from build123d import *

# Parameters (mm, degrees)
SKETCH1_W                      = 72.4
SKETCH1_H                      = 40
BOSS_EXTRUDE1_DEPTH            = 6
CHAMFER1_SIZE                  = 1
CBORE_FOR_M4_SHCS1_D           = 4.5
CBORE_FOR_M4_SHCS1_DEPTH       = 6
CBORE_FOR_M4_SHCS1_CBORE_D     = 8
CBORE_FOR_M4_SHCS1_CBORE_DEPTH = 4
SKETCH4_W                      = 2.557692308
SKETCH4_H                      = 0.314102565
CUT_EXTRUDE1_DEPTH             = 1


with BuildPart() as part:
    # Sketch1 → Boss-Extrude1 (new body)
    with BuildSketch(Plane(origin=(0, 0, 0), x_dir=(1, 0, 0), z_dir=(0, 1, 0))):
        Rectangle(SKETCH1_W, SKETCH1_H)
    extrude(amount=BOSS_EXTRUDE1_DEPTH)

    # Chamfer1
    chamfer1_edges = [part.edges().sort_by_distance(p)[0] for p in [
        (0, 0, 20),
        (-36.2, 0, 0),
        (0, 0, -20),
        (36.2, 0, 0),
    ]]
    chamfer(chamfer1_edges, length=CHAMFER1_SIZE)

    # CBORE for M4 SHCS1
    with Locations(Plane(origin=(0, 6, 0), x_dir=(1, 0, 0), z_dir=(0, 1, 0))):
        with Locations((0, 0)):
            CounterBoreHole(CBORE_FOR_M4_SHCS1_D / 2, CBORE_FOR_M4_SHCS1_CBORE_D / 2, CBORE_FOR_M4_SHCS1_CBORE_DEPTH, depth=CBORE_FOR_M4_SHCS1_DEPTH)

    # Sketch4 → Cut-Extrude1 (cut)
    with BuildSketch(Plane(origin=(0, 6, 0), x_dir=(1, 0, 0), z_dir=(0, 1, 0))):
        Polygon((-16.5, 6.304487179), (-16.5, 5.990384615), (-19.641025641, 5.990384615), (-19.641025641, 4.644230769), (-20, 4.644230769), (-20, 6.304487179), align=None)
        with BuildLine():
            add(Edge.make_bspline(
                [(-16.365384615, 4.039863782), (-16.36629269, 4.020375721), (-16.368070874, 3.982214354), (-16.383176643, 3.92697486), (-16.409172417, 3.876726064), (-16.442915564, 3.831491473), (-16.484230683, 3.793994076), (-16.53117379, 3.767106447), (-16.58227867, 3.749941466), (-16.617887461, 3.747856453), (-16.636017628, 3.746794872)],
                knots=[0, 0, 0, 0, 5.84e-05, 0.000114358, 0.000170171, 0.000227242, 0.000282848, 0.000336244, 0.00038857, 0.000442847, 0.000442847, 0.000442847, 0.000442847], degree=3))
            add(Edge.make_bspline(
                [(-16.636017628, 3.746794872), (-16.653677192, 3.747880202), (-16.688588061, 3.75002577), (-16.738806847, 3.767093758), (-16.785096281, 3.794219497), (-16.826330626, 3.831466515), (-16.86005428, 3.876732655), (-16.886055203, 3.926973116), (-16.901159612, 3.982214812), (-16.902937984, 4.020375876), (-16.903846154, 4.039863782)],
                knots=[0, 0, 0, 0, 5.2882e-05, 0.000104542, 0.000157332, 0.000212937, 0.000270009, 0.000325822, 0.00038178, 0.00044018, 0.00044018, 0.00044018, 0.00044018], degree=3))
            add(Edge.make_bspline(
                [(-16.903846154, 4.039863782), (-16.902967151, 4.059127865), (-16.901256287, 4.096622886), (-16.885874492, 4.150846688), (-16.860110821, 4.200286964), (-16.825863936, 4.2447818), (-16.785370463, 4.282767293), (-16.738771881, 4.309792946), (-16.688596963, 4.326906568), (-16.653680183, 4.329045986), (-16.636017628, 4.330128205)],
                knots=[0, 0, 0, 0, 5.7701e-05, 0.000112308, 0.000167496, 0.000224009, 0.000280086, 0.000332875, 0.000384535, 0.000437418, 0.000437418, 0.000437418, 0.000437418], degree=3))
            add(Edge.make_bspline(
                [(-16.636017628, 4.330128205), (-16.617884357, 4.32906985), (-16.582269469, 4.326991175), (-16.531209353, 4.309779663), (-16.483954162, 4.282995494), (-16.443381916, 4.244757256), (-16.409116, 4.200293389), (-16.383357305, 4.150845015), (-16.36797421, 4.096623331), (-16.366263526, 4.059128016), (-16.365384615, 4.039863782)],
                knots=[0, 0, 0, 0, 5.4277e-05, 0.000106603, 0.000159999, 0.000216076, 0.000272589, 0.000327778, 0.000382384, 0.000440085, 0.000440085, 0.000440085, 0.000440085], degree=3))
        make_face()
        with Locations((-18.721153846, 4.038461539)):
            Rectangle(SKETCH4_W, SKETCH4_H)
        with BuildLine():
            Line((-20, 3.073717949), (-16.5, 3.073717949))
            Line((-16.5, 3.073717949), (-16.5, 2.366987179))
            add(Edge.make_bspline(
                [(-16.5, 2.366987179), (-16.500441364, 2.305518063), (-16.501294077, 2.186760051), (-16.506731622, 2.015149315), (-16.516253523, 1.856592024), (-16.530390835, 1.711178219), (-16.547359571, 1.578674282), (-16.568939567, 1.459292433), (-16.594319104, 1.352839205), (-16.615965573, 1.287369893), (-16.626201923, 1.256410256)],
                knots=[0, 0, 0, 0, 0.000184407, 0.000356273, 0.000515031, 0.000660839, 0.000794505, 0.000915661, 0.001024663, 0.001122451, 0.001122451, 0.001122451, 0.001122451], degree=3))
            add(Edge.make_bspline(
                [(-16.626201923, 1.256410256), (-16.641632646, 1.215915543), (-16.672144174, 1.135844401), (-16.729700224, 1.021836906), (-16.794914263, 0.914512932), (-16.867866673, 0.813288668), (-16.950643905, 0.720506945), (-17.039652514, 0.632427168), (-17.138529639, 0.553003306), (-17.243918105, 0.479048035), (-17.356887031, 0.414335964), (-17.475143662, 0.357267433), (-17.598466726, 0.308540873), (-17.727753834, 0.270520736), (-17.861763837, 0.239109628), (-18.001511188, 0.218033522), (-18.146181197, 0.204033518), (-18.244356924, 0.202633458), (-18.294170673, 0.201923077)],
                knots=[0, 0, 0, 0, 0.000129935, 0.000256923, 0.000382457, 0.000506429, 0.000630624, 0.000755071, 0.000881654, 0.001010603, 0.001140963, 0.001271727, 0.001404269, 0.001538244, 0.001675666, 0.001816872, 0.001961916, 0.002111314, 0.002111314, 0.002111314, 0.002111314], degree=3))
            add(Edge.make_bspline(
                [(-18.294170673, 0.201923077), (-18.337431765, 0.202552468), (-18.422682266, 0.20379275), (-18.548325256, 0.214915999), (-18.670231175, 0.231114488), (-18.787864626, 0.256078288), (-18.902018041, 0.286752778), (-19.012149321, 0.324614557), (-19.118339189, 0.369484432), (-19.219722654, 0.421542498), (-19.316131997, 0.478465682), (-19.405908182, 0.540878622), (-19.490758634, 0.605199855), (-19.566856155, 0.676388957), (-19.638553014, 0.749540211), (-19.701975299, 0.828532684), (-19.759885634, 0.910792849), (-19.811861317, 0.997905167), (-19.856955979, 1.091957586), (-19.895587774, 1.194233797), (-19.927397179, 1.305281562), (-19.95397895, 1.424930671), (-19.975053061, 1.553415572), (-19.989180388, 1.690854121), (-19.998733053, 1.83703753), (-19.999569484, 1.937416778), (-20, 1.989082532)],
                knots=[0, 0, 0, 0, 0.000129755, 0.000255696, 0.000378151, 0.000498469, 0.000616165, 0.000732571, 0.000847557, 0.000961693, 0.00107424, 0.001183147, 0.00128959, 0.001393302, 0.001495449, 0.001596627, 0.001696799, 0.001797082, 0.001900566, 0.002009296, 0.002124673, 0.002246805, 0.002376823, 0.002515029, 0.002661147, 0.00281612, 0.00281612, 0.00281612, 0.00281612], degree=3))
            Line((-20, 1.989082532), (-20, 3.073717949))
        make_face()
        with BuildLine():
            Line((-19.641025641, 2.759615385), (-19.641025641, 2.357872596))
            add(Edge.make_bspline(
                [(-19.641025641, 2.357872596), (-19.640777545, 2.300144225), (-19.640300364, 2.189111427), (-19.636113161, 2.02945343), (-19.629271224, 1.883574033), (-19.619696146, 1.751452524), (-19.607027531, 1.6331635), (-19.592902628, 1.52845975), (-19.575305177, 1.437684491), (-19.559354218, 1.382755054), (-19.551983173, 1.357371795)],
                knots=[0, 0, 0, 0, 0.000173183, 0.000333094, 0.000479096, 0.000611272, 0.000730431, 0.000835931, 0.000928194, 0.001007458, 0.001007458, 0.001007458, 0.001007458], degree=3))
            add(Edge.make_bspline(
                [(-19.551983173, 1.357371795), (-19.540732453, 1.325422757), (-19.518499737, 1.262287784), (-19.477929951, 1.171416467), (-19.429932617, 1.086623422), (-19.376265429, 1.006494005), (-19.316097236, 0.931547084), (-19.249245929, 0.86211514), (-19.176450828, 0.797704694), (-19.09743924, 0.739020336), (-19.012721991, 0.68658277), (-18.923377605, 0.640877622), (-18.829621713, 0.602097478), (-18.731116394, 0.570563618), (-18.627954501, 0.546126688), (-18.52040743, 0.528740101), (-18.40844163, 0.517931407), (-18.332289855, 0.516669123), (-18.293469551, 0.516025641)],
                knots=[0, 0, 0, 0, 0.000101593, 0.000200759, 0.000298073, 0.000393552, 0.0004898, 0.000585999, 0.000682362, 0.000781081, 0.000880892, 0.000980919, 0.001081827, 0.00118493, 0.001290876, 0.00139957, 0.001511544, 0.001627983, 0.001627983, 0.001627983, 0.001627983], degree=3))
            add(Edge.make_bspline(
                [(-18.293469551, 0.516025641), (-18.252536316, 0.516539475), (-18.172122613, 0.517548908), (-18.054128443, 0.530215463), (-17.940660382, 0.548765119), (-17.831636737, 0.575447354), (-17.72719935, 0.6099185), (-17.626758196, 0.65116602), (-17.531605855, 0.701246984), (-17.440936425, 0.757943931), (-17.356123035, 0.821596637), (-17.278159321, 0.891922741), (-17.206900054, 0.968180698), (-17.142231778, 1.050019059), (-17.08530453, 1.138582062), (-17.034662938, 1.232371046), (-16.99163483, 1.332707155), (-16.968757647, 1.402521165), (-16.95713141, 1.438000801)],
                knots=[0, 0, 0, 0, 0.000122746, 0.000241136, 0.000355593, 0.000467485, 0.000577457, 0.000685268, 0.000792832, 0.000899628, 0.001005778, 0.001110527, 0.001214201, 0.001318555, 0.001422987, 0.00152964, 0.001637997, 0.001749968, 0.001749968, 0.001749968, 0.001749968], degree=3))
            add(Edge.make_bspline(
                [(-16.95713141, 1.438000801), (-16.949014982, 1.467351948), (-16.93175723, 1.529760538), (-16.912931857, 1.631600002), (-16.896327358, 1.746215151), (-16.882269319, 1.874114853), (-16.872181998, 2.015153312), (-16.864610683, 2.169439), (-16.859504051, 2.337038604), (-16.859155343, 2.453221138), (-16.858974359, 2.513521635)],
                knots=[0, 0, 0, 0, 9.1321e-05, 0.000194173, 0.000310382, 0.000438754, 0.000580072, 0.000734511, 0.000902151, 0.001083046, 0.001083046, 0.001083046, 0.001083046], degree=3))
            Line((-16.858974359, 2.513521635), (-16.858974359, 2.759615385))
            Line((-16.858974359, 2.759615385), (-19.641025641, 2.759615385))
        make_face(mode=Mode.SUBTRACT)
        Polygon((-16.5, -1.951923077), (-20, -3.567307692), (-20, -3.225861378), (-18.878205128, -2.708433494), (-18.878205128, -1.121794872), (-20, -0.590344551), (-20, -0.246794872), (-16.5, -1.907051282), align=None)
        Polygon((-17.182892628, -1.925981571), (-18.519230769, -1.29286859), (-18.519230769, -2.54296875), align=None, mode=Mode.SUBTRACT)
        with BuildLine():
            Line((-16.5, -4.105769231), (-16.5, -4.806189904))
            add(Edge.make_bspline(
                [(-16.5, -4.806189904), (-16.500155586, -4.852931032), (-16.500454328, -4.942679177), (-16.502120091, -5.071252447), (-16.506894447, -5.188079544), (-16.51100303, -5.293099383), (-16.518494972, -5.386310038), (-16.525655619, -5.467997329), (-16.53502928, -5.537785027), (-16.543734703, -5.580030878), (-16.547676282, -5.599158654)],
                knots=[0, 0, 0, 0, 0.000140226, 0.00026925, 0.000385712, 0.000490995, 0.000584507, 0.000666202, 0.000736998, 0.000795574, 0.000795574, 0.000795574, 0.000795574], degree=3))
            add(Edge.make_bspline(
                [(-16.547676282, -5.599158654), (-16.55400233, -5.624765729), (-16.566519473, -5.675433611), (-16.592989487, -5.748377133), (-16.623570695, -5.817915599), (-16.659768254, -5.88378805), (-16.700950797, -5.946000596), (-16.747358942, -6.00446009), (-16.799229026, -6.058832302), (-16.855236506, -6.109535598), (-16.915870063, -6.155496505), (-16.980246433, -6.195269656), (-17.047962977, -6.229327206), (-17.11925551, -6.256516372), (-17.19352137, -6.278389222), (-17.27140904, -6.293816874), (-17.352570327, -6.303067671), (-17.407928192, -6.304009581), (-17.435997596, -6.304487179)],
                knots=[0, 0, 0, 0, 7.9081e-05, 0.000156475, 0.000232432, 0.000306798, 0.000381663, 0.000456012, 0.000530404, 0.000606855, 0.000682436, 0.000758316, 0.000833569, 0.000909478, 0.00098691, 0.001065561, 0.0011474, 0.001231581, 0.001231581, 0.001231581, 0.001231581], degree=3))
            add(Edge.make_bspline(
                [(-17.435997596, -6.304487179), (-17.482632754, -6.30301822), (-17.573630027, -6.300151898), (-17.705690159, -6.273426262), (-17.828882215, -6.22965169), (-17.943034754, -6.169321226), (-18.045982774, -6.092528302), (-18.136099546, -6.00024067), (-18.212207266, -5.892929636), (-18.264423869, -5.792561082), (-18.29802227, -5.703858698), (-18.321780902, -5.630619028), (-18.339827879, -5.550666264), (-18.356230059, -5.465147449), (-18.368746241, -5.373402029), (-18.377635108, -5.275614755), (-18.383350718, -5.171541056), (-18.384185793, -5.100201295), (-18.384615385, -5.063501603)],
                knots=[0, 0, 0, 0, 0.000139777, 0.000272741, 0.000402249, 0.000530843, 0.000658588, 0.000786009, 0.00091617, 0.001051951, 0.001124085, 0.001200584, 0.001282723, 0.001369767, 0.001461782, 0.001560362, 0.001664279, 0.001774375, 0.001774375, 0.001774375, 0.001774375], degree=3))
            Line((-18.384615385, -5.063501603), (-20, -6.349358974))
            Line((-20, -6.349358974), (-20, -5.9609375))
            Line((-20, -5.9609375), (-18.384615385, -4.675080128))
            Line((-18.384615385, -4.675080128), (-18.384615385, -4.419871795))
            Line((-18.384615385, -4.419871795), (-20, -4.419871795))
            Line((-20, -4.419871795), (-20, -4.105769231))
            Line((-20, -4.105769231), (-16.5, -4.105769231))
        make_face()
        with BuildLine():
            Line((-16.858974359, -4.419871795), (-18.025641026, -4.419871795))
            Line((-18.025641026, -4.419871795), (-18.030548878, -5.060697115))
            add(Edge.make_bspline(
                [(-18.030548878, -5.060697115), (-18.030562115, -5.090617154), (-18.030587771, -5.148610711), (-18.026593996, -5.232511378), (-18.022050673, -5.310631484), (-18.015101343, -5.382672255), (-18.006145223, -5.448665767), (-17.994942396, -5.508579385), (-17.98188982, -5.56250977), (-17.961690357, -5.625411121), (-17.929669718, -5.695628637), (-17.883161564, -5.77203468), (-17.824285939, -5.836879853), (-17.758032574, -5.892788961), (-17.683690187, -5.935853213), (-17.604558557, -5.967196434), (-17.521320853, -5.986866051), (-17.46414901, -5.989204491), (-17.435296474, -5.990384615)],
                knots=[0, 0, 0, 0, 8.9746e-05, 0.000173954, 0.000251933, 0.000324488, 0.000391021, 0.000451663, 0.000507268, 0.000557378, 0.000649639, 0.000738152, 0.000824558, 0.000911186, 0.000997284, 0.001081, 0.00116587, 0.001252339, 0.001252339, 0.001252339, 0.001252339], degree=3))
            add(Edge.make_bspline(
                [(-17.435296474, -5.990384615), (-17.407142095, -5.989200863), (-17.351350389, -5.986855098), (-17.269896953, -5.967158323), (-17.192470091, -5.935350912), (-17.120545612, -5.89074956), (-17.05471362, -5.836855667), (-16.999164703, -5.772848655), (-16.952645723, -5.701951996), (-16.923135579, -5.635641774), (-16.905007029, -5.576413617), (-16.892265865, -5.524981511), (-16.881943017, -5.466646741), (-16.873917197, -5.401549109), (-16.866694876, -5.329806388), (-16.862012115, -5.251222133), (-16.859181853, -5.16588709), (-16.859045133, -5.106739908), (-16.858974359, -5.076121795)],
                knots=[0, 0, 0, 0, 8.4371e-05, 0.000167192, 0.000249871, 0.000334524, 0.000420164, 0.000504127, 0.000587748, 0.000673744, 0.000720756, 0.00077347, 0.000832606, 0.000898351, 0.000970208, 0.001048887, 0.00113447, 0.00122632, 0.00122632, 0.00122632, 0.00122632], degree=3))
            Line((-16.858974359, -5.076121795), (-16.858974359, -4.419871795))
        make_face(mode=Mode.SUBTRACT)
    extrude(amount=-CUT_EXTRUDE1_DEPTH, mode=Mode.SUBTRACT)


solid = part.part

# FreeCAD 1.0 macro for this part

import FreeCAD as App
import Part
import Sketcher
from FreeCAD import Vector
Q = App.Units.Quantity


def edges_at(feature, points):
    """Names of the edges that pass closest to the given points."""
    edges = feature.Shape.Edges
    near = lambda p: min(range(len(edges)), key=lambda i: edges[i].distToShape(Part.Vertex(*p))[0])
    return sorted({f"Edge{near(p) + 1}" for p in points})


def add_polygon(sketch, points):
    """Adds a closed chain of lines whose ends are joined by coincident constraints."""
    first, n = sketch.GeometryCount, len(points)
    for a, b in zip(points, points[1:] + points[:1]):
        sketch.addGeometry(Part.LineSegment(App.Vector(*a, 0), App.Vector(*b, 0)), False)
    for i in range(n):
        sketch.addConstraint(Sketcher.Constraint("Coincident", first + i, 2, first + (i + 1) % n, 1))

doc = App.newDocument("Part")
body = doc.addObject("PartDesign::Body", "Body")

# Sketch on XZ plane
sketch1 = body.newObject("Sketcher::SketchObject", "Sketch")
sketch1.AttachmentSupport = (doc.getObject("XZ_Plane"), [""])
sketch1.MapMode = "FlatFace"
add_polygon(sketch1, [(-36, -20), (-36, 20), (36, 20), (36, -20)])  # lines 0-3
sketch1.addConstraint(Sketcher.Constraint("Vertical", 0))
sketch1.addConstraint(Sketcher.Constraint("Horizontal", 1))
sketch1.addConstraint(Sketcher.Constraint("Vertical", 2))
sketch1.addConstraint(Sketcher.Constraint("Horizontal", 3))
sketch1.addConstraint(Sketcher.Constraint("Symmetric", 0, 2, 2, 2, -1, 1))
sketch1.addConstraint(Sketcher.Constraint("DistanceY", 0, 1, 0, 2, Q("40 mm")))
sketch1.addConstraint(Sketcher.Constraint("DistanceX", 1, 1, 1, 2, Q("72.4 mm")))
pad1 = body.newObject("PartDesign::Pad", "Pad")
pad1.Profile = sketch1
pad1.Length = 6
pad1.Reversed = True
doc.recompute()

chamfer = body.newObject("PartDesign::Chamfer", "Chamfer")
chamfer.Base = (pad1, edges_at(pad1, [
    (0, 0, 20),
    (-36.2, 0, 0),
    (0, 0, -20),
    (36.2, 0, 0),
]))
chamfer.Size = 1

# Sketch on XZ plane
sketch2 = body.newObject("Sketcher::SketchObject", "Sketch001")
sketch2.AttachmentSupport = (doc.getObject("XZ_Plane"), [""])
sketch2.MapMode = "FlatFace"
sketch2.AttachmentOffset = App.Placement(Vector(0, 0, -6), App.Rotation())
sketch2.addGeometry(Part.Circle(Vector(0, 0, 0), Vector(0, 0, 1), 2.2), False)
sketch2.addConstraint(Sketcher.Constraint("Coincident", 0, 3, -1, 1))
sketch2.addConstraint(Sketcher.Constraint("Diameter", 0, Q("4.5 mm")))
doc.recompute()
hole = body.newObject("PartDesign::Hole", "Hole")
hole.Profile = sketch2
hole.ThreadType = "None"
hole.Diameter = 4.5
hole.DepthType = "Dimension"
hole.Depth = 6
hole.DrillPoint = "Flat"
hole.HoleCutType = "Counterbore"
hole.HoleCutDiameter = 8
hole.HoleCutDepth = 4
hole.Reversed = True

# Sketch on XZ plane
sketch3 = body.newObject("Sketcher::SketchObject", "Sketch002")
sketch3.AttachmentSupport = (doc.getObject("XZ_Plane"), [""])
sketch3.MapMode = "FlatFace"
sketch3.AttachmentOffset = App.Placement(Vector(0, 0, -6), App.Rotation())
add_polygon(sketch3, [(-16.5, -5.990385), (-16.5, -6.304487), (-20, -6.304487), (-20, -4.644231), (-19.641026, -4.644231), (-19.641026, -5.990385)])  # lines 0-5
sketch3.addGeometry(Part.BSplineCurve([Vector(-16.365385, -4.039864, 0), Vector(-16.366293, -4.020376, 0), Vector(-16.368071, -3.982214, 0), Vector(-16.383177, -3.926975, 0), Vector(-16.409172, -3.876726, 0), Vector(-16.442916, -3.831491, 0), Vector(-16.484231, -3.793994, 0), Vector(-16.531174, -3.767106, 0), Vector(-16.582279, -3.749941, 0), Vector(-16.617887, -3.747856, 0), Vector(-16.636018, -3.746795, 0)], [4, 1, 1, 1, 1, 1, 1, 1, 4], [0, 0.0000584, 0.000114358, 0.000170171, 0.000227242, 0.000282848, 0.000336244, 0.00038857, 0.000442847], False, 3, [1, 1, 1, 1, 1, 1, 1, 1, 1, 1, 1], False), False)  # 6
sketch3.addGeometry(Part.BSplineCurve([Vector(-16.636018, -4.330128, 0), Vector(-16.617884, -4.32907, 0), Vector(-16.582269, -4.326991, 0), Vector(-16.531209, -4.30978, 0), Vector(-16.483954, -4.282995, 0), Vector(-16.443382, -4.244757, 0), Vector(-16.409116, -4.200293, 0), Vector(-16.383357, -4.150845, 0), Vector(-16.367974, -4.096623, 0), Vector(-16.366264, -4.059128, 0), Vector(-16.365385, -4.039864, 0)], [4, 1, 1, 1, 1, 1, 1, 1, 4], [0, 0.000054277, 0.000106603, 0.000159999, 0.000216076, 0.000272589, 0.000327778, 0.000382384, 0.000440085], False, 3, [1, 1, 1, 1, 1, 1, 1, 1, 1, 1, 1], False), False)  # 7
sketch3.addGeometry(Part.BSplineCurve([Vector(-16.903846, -4.039864, 0), Vector(-16.902967, -4.059128, 0), Vector(-16.901256, -4.096623, 0), Vector(-16.885874, -4.150847, 0), Vector(-16.860111, -4.200287, 0), Vector(-16.825864, -4.244782, 0), Vector(-16.78537, -4.282767, 0), Vector(-16.738772, -4.309793, 0), Vector(-16.688597, -4.326907, 0), Vector(-16.65368, -4.329046, 0), Vector(-16.636018, -4.330128, 0)], [4, 1, 1, 1, 1, 1, 1, 1, 4], [0, 0.000057701, 0.000112308, 0.000167496, 0.000224009, 0.000280086, 0.000332875, 0.000384535, 0.000437418], False, 3, [1, 1, 1, 1, 1, 1, 1, 1, 1, 1, 1], False), False)  # 8
sketch3.addGeometry(Part.BSplineCurve([Vector(-16.636018, -3.746795, 0), Vector(-16.653677, -3.74788, 0), Vector(-16.688588, -3.750026, 0), Vector(-16.738807, -3.767094, 0), Vector(-16.785096, -3.794219, 0), Vector(-16.826331, -3.831467, 0), Vector(-16.860054, -3.876733, 0), Vector(-16.886055, -3.926973, 0), Vector(-16.90116, -3.982215, 0), Vector(-16.902938, -4.020376, 0), Vector(-16.903846, -4.039864, 0)], [4, 1, 1, 1, 1, 1, 1, 1, 4], [0, 0.000052882, 0.000104542, 0.000157332, 0.000212937, 0.000270009, 0.000325822, 0.00038178, 0.00044018], False, 3, [1, 1, 1, 1, 1, 1, 1, 1, 1, 1, 1], False), False)  # 9
add_polygon(sketch3, [(-20, -4.195513), (-20, -3.88141), (-17.442308, -3.88141), (-17.442308, -4.195513)])  # lines 10-13
sketch3.addGeometry(Part.LineSegment(Vector(-16.5, -3.073718, 0), Vector(-20, -3.073718, 0)), False)  # 14
sketch3.addGeometry(Part.LineSegment(Vector(-20, -3.073718, 0), Vector(-20, -1.989083, 0)), False)  # 15
sketch3.addGeometry(Part.BSplineCurve([Vector(-18.294171, -0.201923, 0), Vector(-18.337432, -0.202552, 0), Vector(-18.422682, -0.203793, 0), Vector(-18.548325, -0.214916, 0), Vector(-18.670231, -0.231114, 0), Vector(-18.787865, -0.256078, 0), Vector(-18.902018, -0.286753, 0), Vector(-19.012149, -0.324615, 0), Vector(-19.118339, -0.369484, 0), Vector(-19.219723, -0.421542, 0), Vector(-19.316132, -0.478466, 0), Vector(-19.405908, -0.540879, 0), Vector(-19.490759, -0.6052, 0), Vector(-19.566856, -0.676389, 0), Vector(-19.638553, -0.74954, 0), Vector(-19.701975, -0.828533, 0), Vector(-19.759886, -0.910793, 0), Vector(-19.811861, -0.997905, 0), Vector(-19.856956, -1.091958, 0), Vector(-19.895588, -1.194234, 0), Vector(-19.927397, -1.305282, 0), Vector(-19.953979, -1.424931, 0), Vector(-19.975053, -1.553416, 0), Vector(-19.98918, -1.690854, 0), Vector(-19.998733, -1.837038, 0), Vector(-19.999569, -1.937417, 0), Vector(-20, -1.989083, 0)], [4, 1, 1, 1, 1, 1, 1, 1, 1, 1, 1, 1, 1, 1, 1, 1, 1, 1, 1, 1, 1, 1, 1, 1, 4], [0, 0.000129755, 0.000255696, 0.000378151, 0.000498469, 0.000616165, 0.000732571, 0.000847557, 0.000961693, 0.00107424, 0.001183147, 0.00128959, 0.001393302, 0.001495449, 0.001596627, 0.001696799, 0.001797082, 0.001900566, 0.002009296, 0.002124673, 0.002246805, 0.002376823, 0.002515029, 0.002661147, 0.00281612], False, 3, [1, 1, 1, 1, 1, 1, 1, 1, 1, 1, 1, 1, 1, 1, 1, 1, 1, 1, 1, 1, 1, 1, 1, 1, 1, 1, 1], False), False)  # 16
sketch3.addGeometry(Part.BSplineCurve([Vector(-16.626202, -1.25641, 0), Vector(-16.641633, -1.215916, 0), Vector(-16.672144, -1.135844, 0), Vector(-16.7297, -1.021837, 0), Vector(-16.794914, -0.914513, 0), Vector(-16.867867, -0.813289, 0), Vector(-16.950644, -0.720507, 0), Vector(-17.039653, -0.632427, 0), Vector(-17.13853, -0.553003, 0), Vector(-17.243918, -0.479048, 0), Vector(-17.356887, -0.414336, 0), Vector(-17.475144, -0.357267, 0), Vector(-17.598467, -0.308541, 0), Vector(-17.727754, -0.270521, 0), Vector(-17.861764, -0.23911, 0), Vector(-18.001511, -0.218034, 0), Vector(-18.146181, -0.204034, 0), Vector(-18.244357, -0.202633, 0), Vector(-18.294171, -0.201923, 0)], [4, 1, 1, 1, 1, 1, 1, 1, 1, 1, 1, 1, 1, 1, 1, 1, 4], [0, 0.000129935, 0.000256923, 0.000382457, 0.000506429, 0.000630624, 0.000755071, 0.000881654, 0.001010603, 0.001140963, 0.001271727, 0.001404269, 0.001538244, 0.001675666, 0.001816872, 0.001961916, 0.002111314], False, 3, [1, 1, 1, 1, 1, 1, 1, 1, 1, 1, 1, 1, 1, 1, 1, 1, 1, 1, 1], False), False)  # 17
sketch3.addGeometry(Part.BSplineCurve([Vector(-16.5, -2.366987, 0), Vector(-16.500441, -2.305518, 0), Vector(-16.501294, -2.18676, 0), Vector(-16.506732, -2.015149, 0), Vector(-16.516254, -1.856592, 0), Vector(-16.530391, -1.711178, 0), Vector(-16.54736, -1.578674, 0), Vector(-16.56894, -1.459292, 0), Vector(-16.594319, -1.352839, 0), Vector(-16.615966, -1.28737, 0), Vector(-16.626202, -1.25641, 0)], [4, 1, 1, 1, 1, 1, 1, 1, 4], [0, 0.000184407, 0.000356273, 0.000515031, 0.000660839, 0.000794505, 0.000915661, 0.001024663, 0.001122451], False, 3, [1, 1, 1, 1, 1, 1, 1, 1, 1, 1, 1], False), False)  # 18
sketch3.addGeometry(Part.LineSegment(Vector(-16.5, -2.366987, 0), Vector(-16.5, -3.073718, 0)), False)  # 19
sketch3.addGeometry(Part.LineSegment(Vector(-19.641026, -2.759615, 0), Vector(-16.858974, -2.759615, 0)), False)  # 20
sketch3.addGeometry(Part.LineSegment(Vector(-16.858974, -2.759615, 0), Vector(-16.858974, -2.513522, 0)), False)  # 21
sketch3.addGeometry(Part.BSplineCurve([Vector(-16.957131, -1.438001, 0), Vector(-16.949015, -1.467352, 0), Vector(-16.931757, -1.529761, 0), Vector(-16.912932, -1.6316, 0), Vector(-16.896327, -1.746215, 0), Vector(-16.882269, -1.874115, 0), Vector(-16.872182, -2.015153, 0), Vector(-16.864611, -2.169439, 0), Vector(-16.859504, -2.337039, 0), Vector(-16.859155, -2.453221, 0), Vector(-16.858974, -2.513522, 0)], [4, 1, 1, 1, 1, 1, 1, 1, 4], [0, 0.000091321, 0.000194173, 0.000310382, 0.000438754, 0.000580072, 0.000734511, 0.000902151, 0.001083046], False, 3, [1, 1, 1, 1, 1, 1, 1, 1, 1, 1, 1], False), False)  # 22
sketch3.addGeometry(Part.BSplineCurve([Vector(-18.29347, -0.516026, 0), Vector(-18.252536, -0.516539, 0), Vector(-18.172123, -0.517549, 0), Vector(-18.054128, -0.530215, 0), Vector(-17.94066, -0.548765, 0), Vector(-17.831637, -0.575447, 0), Vector(-17.727199, -0.609919, 0), Vector(-17.626758, -0.651166, 0), Vector(-17.531606, -0.701247, 0), Vector(-17.440936, -0.757944, 0), Vector(-17.356123, -0.821597, 0), Vector(-17.278159, -0.891923, 0), Vector(-17.2069, -0.968181, 0), Vector(-17.142232, -1.050019, 0), Vector(-17.085305, -1.138582, 0), Vector(-17.034663, -1.232371, 0), Vector(-16.991635, -1.332707, 0), Vector(-16.968758, -1.402521, 0), Vector(-16.957131, -1.438001, 0)], [4, 1, 1, 1, 1, 1, 1, 1, 1, 1, 1, 1, 1, 1, 1, 1, 4], [0, 0.000122746, 0.000241136, 0.000355593, 0.000467485, 0.000577457, 0.000685268, 0.000792832, 0.000899628, 0.001005778, 0.001110527, 0.001214201, 0.001318555, 0.001422987, 0.00152964, 0.001637997, 0.001749968], False, 3, [1, 1, 1, 1, 1, 1, 1, 1, 1, 1, 1, 1, 1, 1, 1, 1, 1, 1, 1], False), False)  # 23
sketch3.addGeometry(Part.BSplineCurve([Vector(-19.551983, -1.357372, 0), Vector(-19.540732, -1.325423, 0), Vector(-19.5185, -1.262288, 0), Vector(-19.47793, -1.171416, 0), Vector(-19.429933, -1.086623, 0), Vector(-19.376265, -1.006494, 0), Vector(-19.316097, -0.931547, 0), Vector(-19.249246, -0.862115, 0), Vector(-19.176451, -0.797705, 0), Vector(-19.097439, -0.73902, 0), Vector(-19.012722, -0.686583, 0), Vector(-18.923378, -0.640878, 0), Vector(-18.829622, -0.602097, 0), Vector(-18.731116, -0.570564, 0), Vector(-18.627955, -0.546127, 0), Vector(-18.520407, -0.52874, 0), Vector(-18.408442, -0.517931, 0), Vector(-18.33229, -0.516669, 0), Vector(-18.29347, -0.516026, 0)], [4, 1, 1, 1, 1, 1, 1, 1, 1, 1, 1, 1, 1, 1, 1, 1, 4], [0, 0.000101593, 0.000200759, 0.000298073, 0.000393552, 0.0004898, 0.000585999, 0.000682362, 0.000781081, 0.000880892, 0.000980919, 0.001081827, 0.00118493, 0.001290876, 0.00139957, 0.001511544, 0.001627983], False, 3, [1, 1, 1, 1, 1, 1, 1, 1, 1, 1, 1, 1, 1, 1, 1, 1, 1, 1, 1], False), False)  # 24
sketch3.addGeometry(Part.BSplineCurve([Vector(-19.641026, -2.357873, 0), Vector(-19.640778, -2.300144, 0), Vector(-19.6403, -2.189111, 0), Vector(-19.636113, -2.029453, 0), Vector(-19.629271, -1.883574, 0), Vector(-19.619696, -1.751453, 0), Vector(-19.607028, -1.633163, 0), Vector(-19.592903, -1.52846, 0), Vector(-19.575305, -1.437684, 0), Vector(-19.559354, -1.382755, 0), Vector(-19.551983, -1.357372, 0)], [4, 1, 1, 1, 1, 1, 1, 1, 4], [0, 0.000173183, 0.000333094, 0.000479096, 0.000611272, 0.000730431, 0.000835931, 0.000928194, 0.001007458], False, 3, [1, 1, 1, 1, 1, 1, 1, 1, 1, 1, 1], False), False)  # 25
sketch3.addGeometry(Part.LineSegment(Vector(-19.641026, -2.357873, 0), Vector(-19.641026, -2.759615, 0)), False)  # 26
add_polygon(sketch3, [(-20, 3.567308), (-16.5, 1.951923), (-16.5, 1.907051), (-20, 0.246795), (-20, 0.590345), (-18.878205, 1.121795), (-18.878205, 2.708433), (-20, 3.225861)])  # lines 27-34
add_polygon(sketch3, [(-17.182893, 1.925982), (-18.519231, 2.542969), (-18.519231, 1.292869)])  # lines 35-37
sketch3.addGeometry(Part.LineSegment(Vector(-16.5, 4.80619, 0), Vector(-16.5, 4.105769, 0)), False)  # 38
sketch3.addGeometry(Part.LineSegment(Vector(-16.5, 4.105769, 0), Vector(-20, 4.105769, 0)), False)  # 39
sketch3.addGeometry(Part.LineSegment(Vector(-20, 4.105769, 0), Vector(-20, 4.419872, 0)), False)  # 40
sketch3.addGeometry(Part.LineSegment(Vector(-20, 4.419872, 0), Vector(-18.384615, 4.419872, 0)), False)  # 41
sketch3.addGeometry(Part.LineSegment(Vector(-18.384615, 4.419872, 0), Vector(-18.384615, 4.67508, 0)), False)  # 42
sketch3.addGeometry(Part.LineSegment(Vector(-18.384615, 4.67508, 0), Vector(-20, 5.960938, 0)), False)  # 43
sketch3.addGeometry(Part.LineSegment(Vector(-20, 5.960938, 0), Vector(-20, 6.349359, 0)), False)  # 44
sketch3.addGeometry(Part.LineSegment(Vector(-20, 6.349359, 0), Vector(-18.384615, 5.063502, 0)), False)  # 45
sketch3.addGeometry(Part.BSplineCurve([Vector(-17.435998, 6.304487, 0), Vector(-17.482633, 6.303018, 0), Vector(-17.57363, 6.300152, 0), Vector(-17.70569, 6.273426, 0), Vector(-17.828882, 6.229652, 0), Vector(-17.943035, 6.169321, 0), Vector(-18.045983, 6.092528, 0), Vector(-18.1361, 6.000241, 0), Vector(-18.212207, 5.89293, 0), Vector(-18.264424, 5.792561, 0), Vector(-18.298022, 5.703859, 0), Vector(-18.321781, 5.630619, 0), Vector(-18.339828, 5.550666, 0), Vector(-18.35623, 5.465147, 0), Vector(-18.368746, 5.373402, 0), Vector(-18.377635, 5.275615, 0), Vector(-18.383351, 5.171541, 0), Vector(-18.384186, 5.100201, 0), Vector(-18.384615, 5.063502, 0)], [4, 1, 1, 1, 1, 1, 1, 1, 1, 1, 1, 1, 1, 1, 1, 1, 4], [0, 0.000139777, 0.000272741, 0.000402249, 0.000530843, 0.000658588, 0.000786009, 0.00091617, 0.001051951, 0.001124085, 0.001200584, 0.001282723, 0.001369767, 0.001461782, 0.001560362, 0.001664279, 0.001774375], False, 3, [1, 1, 1, 1, 1, 1, 1, 1, 1, 1, 1, 1, 1, 1, 1, 1, 1, 1, 1], False), False)  # 46
sketch3.addGeometry(Part.BSplineCurve([Vector(-16.547676, 5.599159, 0), Vector(-16.554002, 5.624766, 0), Vector(-16.566519, 5.675434, 0), Vector(-16.592989, 5.748377, 0), Vector(-16.623571, 5.817916, 0), Vector(-16.659768, 5.883788, 0), Vector(-16.700951, 5.946001, 0), Vector(-16.747359, 6.00446, 0), Vector(-16.799229, 6.058832, 0), Vector(-16.855237, 6.109536, 0), Vector(-16.91587, 6.155497, 0), Vector(-16.980246, 6.19527, 0), Vector(-17.047963, 6.229327, 0), Vector(-17.119256, 6.256516, 0), Vector(-17.193521, 6.278389, 0), Vector(-17.271409, 6.293817, 0), Vector(-17.35257, 6.303068, 0), Vector(-17.407928, 6.30401, 0), Vector(-17.435998, 6.304487, 0)], [4, 1, 1, 1, 1, 1, 1, 1, 1, 1, 1, 1, 1, 1, 1, 1, 4], [0, 0.000079081, 0.000156475, 0.000232432, 0.000306798, 0.000381663, 0.000456012, 0.000530404, 0.000606855, 0.000682436, 0.000758316, 0.000833569, 0.000909478, 0.00098691, 0.001065561, 0.0011474, 0.001231581], False, 3, [1, 1, 1, 1, 1, 1, 1, 1, 1, 1, 1, 1, 1, 1, 1, 1, 1, 1, 1], False), False)  # 47
sketch3.addGeometry(Part.BSplineCurve([Vector(-16.5, 4.80619, 0), Vector(-16.500156, 4.852931, 0), Vector(-16.500454, 4.942679, 0), Vector(-16.50212, 5.071252, 0), Vector(-16.506894, 5.18808, 0), Vector(-16.511003, 5.293099, 0), Vector(-16.518495, 5.38631, 0), Vector(-16.525656, 5.467997, 0), Vector(-16.535029, 5.537785, 0), Vector(-16.543735, 5.580031, 0), Vector(-16.547676, 5.599159, 0)], [4, 1, 1, 1, 1, 1, 1, 1, 4], [0, 0.000140226, 0.00026925, 0.000385712, 0.000490995, 0.000584507, 0.000666202, 0.000736998, 0.000795574], False, 3, [1, 1, 1, 1, 1, 1, 1, 1, 1, 1, 1], False), False)  # 48
sketch3.addGeometry(Part.LineSegment(Vector(-16.858974, 4.419872, 0), Vector(-16.858974, 5.076122, 0)), False)  # 49
sketch3.addGeometry(Part.BSplineCurve([Vector(-17.435296, 5.990385, 0), Vector(-17.407142, 5.989201, 0), Vector(-17.35135, 5.986855, 0), Vector(-17.269897, 5.967158, 0), Vector(-17.19247, 5.935351, 0), Vector(-17.120546, 5.89075, 0), Vector(-17.054714, 5.836856, 0), Vector(-16.999165, 5.772849, 0), Vector(-16.952646, 5.701952, 0), Vector(-16.923136, 5.635642, 0), Vector(-16.905007, 5.576414, 0), Vector(-16.892266, 5.524982, 0), Vector(-16.881943, 5.466647, 0), Vector(-16.873917, 5.401549, 0), Vector(-16.866695, 5.329806, 0), Vector(-16.862012, 5.251222, 0), Vector(-16.859182, 5.165887, 0), Vector(-16.859045, 5.10674, 0), Vector(-16.858974, 5.076122, 0)], [4, 1, 1, 1, 1, 1, 1, 1, 1, 1, 1, 1, 1, 1, 1, 1, 4], [0, 0.000084371, 0.000167192, 0.000249871, 0.000334524, 0.000420164, 0.000504127, 0.000587748, 0.000673744, 0.000720756, 0.00077347, 0.000832606, 0.000898351, 0.000970208, 0.001048887, 0.00113447, 0.00122632], False, 3, [1, 1, 1, 1, 1, 1, 1, 1, 1, 1, 1, 1, 1, 1, 1, 1, 1, 1, 1], False), False)  # 50
sketch3.addGeometry(Part.BSplineCurve([Vector(-18.030549, 5.060697, 0), Vector(-18.030562, 5.090617, 0), Vector(-18.030588, 5.148611, 0), Vector(-18.026594, 5.232511, 0), Vector(-18.022051, 5.310631, 0), Vector(-18.015101, 5.382672, 0), Vector(-18.006145, 5.448666, 0), Vector(-17.994942, 5.508579, 0), Vector(-17.98189, 5.56251, 0), Vector(-17.96169, 5.625411, 0), Vector(-17.92967, 5.695629, 0), Vector(-17.883162, 5.772035, 0), Vector(-17.824286, 5.83688, 0), Vector(-17.758033, 5.892789, 0), Vector(-17.68369, 5.935853, 0), Vector(-17.604559, 5.967196, 0), Vector(-17.521321, 5.986866, 0), Vector(-17.464149, 5.989204, 0), Vector(-17.435296, 5.990385, 0)], [4, 1, 1, 1, 1, 1, 1, 1, 1, 1, 1, 1, 1, 1, 1, 1, 4], [0, 0.000089746, 0.000173954, 0.000251933, 0.000324488, 0.000391021, 0.000451663, 0.000507268, 0.000557378, 0.000649639, 0.000738152, 0.000824558, 0.000911186, 0.000997284, 0.001081, 0.00116587, 0.001252339], False, 3, [1, 1, 1, 1, 1, 1, 1, 1, 1, 1, 1, 1, 1, 1, 1, 1, 1, 1, 1], False), False)  # 51
sketch3.addGeometry(Part.LineSegment(Vector(-18.030549, 5.060697, 0), Vector(-18.025641, 4.419872, 0)), False)  # 52
sketch3.addGeometry(Part.LineSegment(Vector(-18.025641, 4.419872, 0), Vector(-16.858974, 4.419872, 0)), False)  # 53
sketch3.addConstraint(Sketcher.Constraint("Block", 6))
sketch3.addConstraint(Sketcher.Constraint("Block", 7))
sketch3.addConstraint(Sketcher.Constraint("Block", 8))
sketch3.addConstraint(Sketcher.Constraint("Block", 9))
sketch3.addConstraint(Sketcher.Constraint("Block", 16))
sketch3.addConstraint(Sketcher.Constraint("Block", 17))
sketch3.addConstraint(Sketcher.Constraint("Block", 18))
sketch3.addConstraint(Sketcher.Constraint("Block", 22))
sketch3.addConstraint(Sketcher.Constraint("Block", 23))
sketch3.addConstraint(Sketcher.Constraint("Block", 24))
sketch3.addConstraint(Sketcher.Constraint("Block", 25))
sketch3.addConstraint(Sketcher.Constraint("Block", 46))
sketch3.addConstraint(Sketcher.Constraint("Block", 47))
sketch3.addConstraint(Sketcher.Constraint("Block", 48))
sketch3.addConstraint(Sketcher.Constraint("Block", 50))
sketch3.addConstraint(Sketcher.Constraint("Block", 51))
sketch3.addConstraint(Sketcher.Constraint("Coincident", 14, 2, 15, 1))
sketch3.addConstraint(Sketcher.Constraint("Coincident", 15, 2, 16, 2))
sketch3.addConstraint(Sketcher.Constraint("Coincident", 18, 1, 19, 1))
sketch3.addConstraint(Sketcher.Constraint("Coincident", 19, 2, 14, 1))
sketch3.addConstraint(Sketcher.Constraint("Coincident", 20, 2, 21, 1))
sketch3.addConstraint(Sketcher.Constraint("Coincident", 21, 2, 22, 2))
sketch3.addConstraint(Sketcher.Constraint("Coincident", 25, 1, 26, 1))
sketch3.addConstraint(Sketcher.Constraint("Coincident", 26, 2, 20, 1))
sketch3.addConstraint(Sketcher.Constraint("Coincident", 38, 2, 39, 1))
sketch3.addConstraint(Sketcher.Constraint("Coincident", 39, 2, 40, 1))
sketch3.addConstraint(Sketcher.Constraint("Coincident", 40, 2, 41, 1))
sketch3.addConstraint(Sketcher.Constraint("Coincident", 41, 2, 42, 1))
sketch3.addConstraint(Sketcher.Constraint("Coincident", 42, 2, 43, 1))
sketch3.addConstraint(Sketcher.Constraint("Coincident", 43, 2, 44, 1))
sketch3.addConstraint(Sketcher.Constraint("Coincident", 44, 2, 45, 1))
sketch3.addConstraint(Sketcher.Constraint("Coincident", 45, 2, 46, 2))
sketch3.addConstraint(Sketcher.Constraint("Coincident", 48, 1, 38, 1))
sketch3.addConstraint(Sketcher.Constraint("Coincident", 49, 2, 50, 2))
sketch3.addConstraint(Sketcher.Constraint("Coincident", 51, 1, 52, 1))
sketch3.addConstraint(Sketcher.Constraint("Coincident", 52, 2, 53, 1))
sketch3.addConstraint(Sketcher.Constraint("Coincident", 53, 2, 49, 1))
sketch3.addConstraint(Sketcher.Constraint("Vertical", 0))
sketch3.addConstraint(Sketcher.Constraint("Horizontal", 1))
sketch3.addConstraint(Sketcher.Constraint("Vertical", 2))
sketch3.addConstraint(Sketcher.Constraint("Horizontal", 3))
sketch3.addConstraint(Sketcher.Constraint("Vertical", 4))
sketch3.addConstraint(Sketcher.Constraint("Horizontal", 5))
sketch3.addConstraint(Sketcher.Constraint("Vertical", 10))
sketch3.addConstraint(Sketcher.Constraint("Horizontal", 11))
sketch3.addConstraint(Sketcher.Constraint("Vertical", 12))
sketch3.addConstraint(Sketcher.Constraint("Horizontal", 13))
sketch3.addConstraint(Sketcher.Constraint("Horizontal", 14))
sketch3.addConstraint(Sketcher.Constraint("Vertical", 15))
sketch3.addConstraint(Sketcher.Constraint("Vertical", 19))
sketch3.addConstraint(Sketcher.Constraint("Horizontal", 20))
sketch3.addConstraint(Sketcher.Constraint("Vertical", 21))
sketch3.addConstraint(Sketcher.Constraint("Vertical", 26))
sketch3.addConstraint(Sketcher.Constraint("Vertical", 28))
sketch3.addConstraint(Sketcher.Constraint("Vertical", 30))
sketch3.addConstraint(Sketcher.Constraint("Vertical", 32))
sketch3.addConstraint(Sketcher.Constraint("Vertical", 34))
sketch3.addConstraint(Sketcher.Constraint("Vertical", 36))
sketch3.addConstraint(Sketcher.Constraint("Vertical", 38))
sketch3.addConstraint(Sketcher.Constraint("Horizontal", 39))
sketch3.addConstraint(Sketcher.Constraint("Vertical", 40))
sketch3.addConstraint(Sketcher.Constraint("Horizontal", 41))
sketch3.addConstraint(Sketcher.Constraint("Vertical", 42))
sketch3.addConstraint(Sketcher.Constraint("Vertical", 44))
sketch3.addConstraint(Sketcher.Constraint("Vertical", 49))
sketch3.addConstraint(Sketcher.Constraint("Horizontal", 53))
sketch3.addConstraint(Sketcher.Constraint("Parallel", 43, 45))
sketch3.addConstraint(Sketcher.Constraint("Horizontal", 41, 2, 52, 2))
sketch3.addConstraint(Sketcher.Constraint("Vertical", 2, 2, 10, 2))
sketch3.addConstraint(Sketcher.Constraint("Vertical", 13, 2, 14, 2))
sketch3.addConstraint(Sketcher.Constraint("Vertical", 5, 2, 19, 2))
sketch3.addConstraint(Sketcher.Constraint("Vertical", 4, 2, 26, 2))
sketch3.addConstraint(Sketcher.Constraint("Vertical", 19, 2, 27, 2))
sketch3.addConstraint(Sketcher.Constraint("Vertical", 15, 2, 29, 2))
sketch3.addConstraint(Sketcher.Constraint("Vertical", 30, 2, 33, 2))
sketch3.addConstraint(Sketcher.Constraint("Vertical", 34, 2, 39, 2))
sketch3.addConstraint(Sketcher.Constraint("Vertical", 40, 2, 43, 2))
sketch3.addConstraint(Sketcher.Constraint("Vertical", 42, 2, 45, 2))
sketch3.addConstraint(Sketcher.Constraint("Equal", 0, 10))
sketch3.addConstraint(Sketcher.Constraint("Equal", 12, 40))
sketch3.addConstraint(Sketcher.Constraint("DistanceY", 36, 2, 36, 1, Q("1.2501 mm")))
sketch3.addConstraint(Sketcher.Constraint("DistanceY", 29, 2, 31, 2, Q("0.875 mm")))
sketch3.addConstraint(Sketcher.Constraint("DistanceY", 19, 2, 19, 1, Q("0.706731 mm")))
sketch3.addConstraint(Sketcher.Constraint("DistanceY", 28, 2, 28, 1, Q("0.044872 mm")))
sketch3.addConstraint(Sketcher.Constraint("DistanceY", 30, 1, 30, 2, Q("0.34355 mm")))
sketch3.addConstraint(Sketcher.Constraint("DistanceY", 32, 1, 32, 2, Q("1.586639 mm")))
sketch3.addConstraint(Sketcher.Constraint("DistanceY", 38, 2, 38, 1, Q("0.700421 mm")))
sketch3.addConstraint(Sketcher.Constraint("DistanceY", 42, 1, 42, 2, Q("0.255208 mm")))
sketch3.addConstraint(Sketcher.Constraint("DistanceY", 44, 1, 44, 2, Q("0.388421 mm")))
sketch3.addConstraint(Sketcher.Constraint("DistanceY", 35, 2, 38, 2, Q("1.5628 mm")))
sketch3.addConstraint(Sketcher.Constraint("Distance", 43, Q("2.064678 mm")))
sketch3.addConstraint(Sketcher.Constraint("DistanceX", 11, 1, 11, 2, Q("2.557692 mm")))
sketch3.addConstraint(Sketcher.Constraint("DistanceX", 53, 1, 53, 2, Q("1.166667 mm")))
sketch3.addConstraint(Sketcher.Constraint("DistanceY", 2, 1, 2, 2, Q("1.660256 mm")))
sketch3.addConstraint(Sketcher.Constraint("DistanceY", 21, 1, 21, 2, Q("0.246094 mm")))
sketch3.addConstraint(Sketcher.Constraint("DistanceY", 34, 1, 34, 2, Q("0.341446 mm")))
sketch3.addConstraint(Sketcher.Constraint("DistanceY", 2, 2, -1, 1, Q("4.644231 mm")))
sketch3.addConstraint(Sketcher.Constraint("DistanceY", 10, 2, -1, 1, Q("3.88141 mm")))
sketch3.addConstraint(Sketcher.Constraint("DistanceY", -1, 1, 28, 2, Q("1.907051 mm")))
sketch3.addConstraint(Sketcher.Constraint("DistanceY", -1, 1, 33, 2, Q("3.225861 mm")))
sketch3.addConstraint(Sketcher.Constraint("DistanceX", 35, 2, -1, 1, Q("18.519231 mm")))
sketch3.addConstraint(Sketcher.Constraint("DistanceY", -1, 1, 37, 2, Q("1.925982 mm")))
sketch3.addConstraint(Sketcher.Constraint("DistanceY", 26, 2, 29, 2, Q("3.00641 mm")))
sketch3.addConstraint(Sketcher.Constraint("DistanceX", 35, 2, 37, 2, Q("1.336338 mm")))
sketch3.addConstraint(Sketcher.Constraint("DistanceX", 32, 2, 41, 2, Q("0.49359 mm")))
pocket1 = body.newObject("PartDesign::Pocket", "Pocket")
pocket1.Profile = sketch3
pocket1.Length = 1
pocket1.Reversed = True

doc.recompute()
